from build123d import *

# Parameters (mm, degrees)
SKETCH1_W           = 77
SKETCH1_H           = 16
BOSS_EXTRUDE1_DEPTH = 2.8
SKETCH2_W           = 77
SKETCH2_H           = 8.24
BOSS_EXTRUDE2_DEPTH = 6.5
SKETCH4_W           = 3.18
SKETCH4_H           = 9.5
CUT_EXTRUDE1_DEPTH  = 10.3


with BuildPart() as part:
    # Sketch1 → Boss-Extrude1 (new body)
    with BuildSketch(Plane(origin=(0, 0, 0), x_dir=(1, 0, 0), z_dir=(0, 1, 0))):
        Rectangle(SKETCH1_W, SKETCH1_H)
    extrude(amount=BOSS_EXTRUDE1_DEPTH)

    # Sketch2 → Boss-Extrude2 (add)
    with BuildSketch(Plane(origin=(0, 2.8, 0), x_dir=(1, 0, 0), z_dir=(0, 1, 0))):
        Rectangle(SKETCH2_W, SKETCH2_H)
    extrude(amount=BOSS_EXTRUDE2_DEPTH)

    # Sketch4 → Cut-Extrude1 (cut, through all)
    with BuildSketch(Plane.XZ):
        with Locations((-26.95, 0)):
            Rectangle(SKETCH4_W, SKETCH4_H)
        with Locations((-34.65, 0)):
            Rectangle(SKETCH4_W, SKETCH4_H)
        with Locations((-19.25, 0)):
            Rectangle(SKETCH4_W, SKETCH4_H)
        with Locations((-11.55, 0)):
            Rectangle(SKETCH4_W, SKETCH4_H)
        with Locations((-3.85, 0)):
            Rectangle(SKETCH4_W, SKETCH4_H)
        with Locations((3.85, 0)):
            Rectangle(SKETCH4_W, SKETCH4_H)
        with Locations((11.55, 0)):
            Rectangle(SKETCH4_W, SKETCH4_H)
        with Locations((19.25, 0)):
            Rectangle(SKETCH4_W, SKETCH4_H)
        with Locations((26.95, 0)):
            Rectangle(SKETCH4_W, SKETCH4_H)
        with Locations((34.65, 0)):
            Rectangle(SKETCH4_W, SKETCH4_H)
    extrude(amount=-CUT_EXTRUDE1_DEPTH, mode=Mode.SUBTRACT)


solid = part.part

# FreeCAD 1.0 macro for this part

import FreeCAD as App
import Part
import Sketcher

V = App.Vector
Q = App.Units.Quantity

doc = App.newDocument("Part")
body = doc.addObject("PartDesign::Body", "Body")

# Sketch on XZ plane
sketch1 = doc.addObject("Sketcher::SketchObject", "Sketch")
body.addObject(sketch1)
sketch1.AttachmentSupport = (doc.XZ_Plane, [""])
sketch1.MapMode = "FlatFace"
sketch1.addGeometry(Part.LineSegment(V(-38.5, -8, 0), V(-38.5, 8, 0)), False)
sketch1.addGeometry(Part.LineSegment(V(-38.5, 8, 0), V(38.5, 8, 0)), False)
sketch1.addGeometry(Part.LineSegment(V(38.5, 8, 0), V(38.5, -8, 0)), False)
sketch1.addGeometry(Part.LineSegment(V(38.5, -8, 0), V(-38.5, -8, 0)), False)
sketch1.addConstraint(Sketcher.Constraint("Coincident", 0, 2, 1, 1))
sketch1.addConstraint(Sketcher.Constraint("Coincident", 1, 2, 2, 1))
sketch1.addConstraint(Sketcher.Constraint("Coincident", 2, 2, 3, 1))
sketch1.addConstraint(Sketcher.Constraint("Coincident", 3, 2, 0, 1))
sketch1.addConstraint(Sketcher.Constraint("Vertical", 0))
sketch1.addConstraint(Sketcher.Constraint("Horizontal", 1))
sketch1.addConstraint(Sketcher.Constraint("Vertical", 2))
sketch1.addConstraint(Sketcher.Constraint("Horizontal", 3))
sketch1.addConstraint(Sketcher.Constraint("Symmetric", 0, 2, 2, 2, -1, 1))
sketch1.addConstraint(Sketcher.Constraint("DistanceX", 1, 1, 1, 2, Q("77 mm")))
sketch1.addConstraint(Sketcher.Constraint("DistanceY", 0, 1, 0, 2, Q("16 mm")))
pad1 = doc.addObject("PartDesign::Pad", "Pad")
body.addObject(pad1)
pad1.Profile = sketch1
pad1.Length = 2.8
pad1.Reversed = True

# Sketch on XZ plane
sketch2 = doc.addObject("Sketcher::SketchObject", "Sketch001")
body.addObject(sketch2)
sketch2.AttachmentSupport = (doc.XZ_Plane, [""])
sketch2.MapMode = "FlatFace"
sketch2.AttachmentOffset = App.Placement(V(0, 0, -2.8), App.Rotation())
sketch2.addGeometry(Part.LineSegment(V(-38.5, -4.12, 0), V(-38.5, 4.12, 0)), False)
sketch2.addGeometry(Part.LineSegment(V(-38.5, 4.12, 0), V(38.5, 4.12, 0)), False)
sketch2.addGeometry(Part.LineSegment(V(38.5, 4.12, 0), V(38.5, -4.12, 0)), False)
sketch2.addGeometry(Part.LineSegment(V(38.5, -4.12, 0), V(-38.5, -4.12, 0)), False)
sketch2.addConstraint(Sketcher.Constraint("Coincident", 0, 2, 1, 1))
sketch2.addConstraint(Sketcher.Constraint("Coincident", 1, 2, 2, 1))
sketch2.addConstraint(Sketcher.Constraint("Coincident", 2, 2, 3, 1))
sketch2.addConstraint(Sketcher.Constraint("Coincident", 3, 2, 0, 1))
sketch2.addConstraint(Sketcher.Constraint("Vertical", 0))
sketch2.addConstraint(Sketcher.Constraint("Horizontal", 1))
sketch2.addConstraint(Sketcher.Constraint("Vertical", 2))
sketch2.addConstraint(Sketcher.Constraint("Horizontal", 3))
sketch2.addConstraint(Sketcher.Constraint("Symmetric", 0, 2, 2, 2, -1, 1))
sketch2.addConstraint(Sketcher.Constraint("DistanceX", 1, 1, 1, 2, Q("77 mm")))
sketch2.addConstraint(Sketcher.Constraint("DistanceY", 0, 1, 0, 2, Q("8.24 mm")))
pad2 = doc.addObject("PartDesign::Pad", "Pad001")
body.addObject(pad2)
pad2.Profile = sketch2
pad2.Length = 6.5
pad2.Reversed = True

# Sketch on XZ plane
sketch3 = doc.addObject("Sketcher::SketchObject", "Sketch002")
body.addObject(sketch3)
sketch3.AttachmentSupport = (doc.XZ_Plane, [""])
sketch3.MapMode = "FlatFace"
sketch3.addGeometry(Part.LineSegment(V(-28.54, 4.75, 0), V(-28.54, -4.75, 0)), False)
sketch3.addGeometry(Part.LineSegment(V(-28.54, -4.75, 0), V(-25.36, -4.75, 0)), False)
sketch3.addGeometry(Part.LineSegment(V(-25.36, -4.75, 0), V(-25.36, 4.75, 0)), False)
sketch3.addGeometry(Part.LineSegment(V(-25.36, 4.75, 0), V(-28.54, 4.75, 0)), False)
sketch3.addGeometry(Part.LineSegment(V(-36.24, 4.75, 0), V(-36.24, -4.75, 0)), False)
sketch3.addGeometry(Part.LineSegment(V(-36.24, -4.75, 0), V(-33.06, -4.75, 0)), False)
sketch3.addGeometry(Part.LineSegment(V(-33.06, -4.75, 0), V(-33.06, 4.75, 0)), False)
sketch3.addGeometry(Part.LineSegment(V(-33.06, 4.75, 0), V(-36.24, 4.75, 0)), False)
sketch3.addGeometry(Part.LineSegment(V(-20.84, 4.75, 0), V(-20.84, -4.75, 0)), False)
sketch3.addGeometry(Part.LineSegment(V(-20.84, -4.75, 0), V(-17.66, -4.75, 0)), False)
sketch3.addGeometry(Part.LineSegment(V(-17.66, -4.75, 0), V(-17.66, 4.75, 0)), False)
sketch3.addGeometry(Part.LineSegment(V(-17.66, 4.75, 0), V(-20.84, 4.75, 0)), False)
sketch3.addGeometry(Part.LineSegment(V(-13.14, 4.75, 0), V(-13.14, -4.75, 0)), False)
sketch3.addGeometry(Part.LineSegment(V(-13.14, -4.75, 0), V(-9.96, -4.75, 0)), False)
sketch3.addGeometry(Part.LineSegment(V(-9.96, -4.75, 0), V(-9.96, 4.75, 0)), False)
sketch3.addGeometry(Part.LineSegment(V(-9.96, 4.75, 0), V(-13.14, 4.75, 0)), False)
sketch3.addGeometry(Part.LineSegment(V(-5.44, 4.75, 0), V(-5.44, -4.75, 0)), False)
sketch3.addGeometry(Part.LineSegment(V(-5.44, -4.75, 0), V(-2.26, -4.75, 0)), False)
sketch3.addGeometry(Part.LineSegment(V(-2.26, -4.75, 0), V(-2.26, 4.75, 0)), False)
sketch3.addGeometry(Part.LineSegment(V(-2.26, 4.75, 0), V(-5.44, 4.75, 0)), False)
sketch3.addGeometry(Part.LineSegment(V(2.26, 4.75, 0), V(2.26, -4.75, 0)), False)
sketch3.addGeometry(Part.LineSegment(V(2.26, -4.75, 0), V(5.44, -4.75, 0)), False)
sketch3.addGeometry(Part.LineSegment(V(5.44, -4.75, 0), V(5.44, 4.75, 0)), False)
sketch3.addGeometry(Part.LineSegment(V(5.44, 4.75, 0), V(2.26, 4.75, 0)), False)
sketch3.addGeometry(Part.LineSegment(V(9.96, 4.75, 0), V(9.96, -4.75, 0)), False)
sketch3.addGeometry(Part.LineSegment(V(9.96, -4.75, 0), V(13.14, -4.75, 0)), False)
sketch3.addGeometry(Part.LineSegment(V(13.14, -4.75, 0), V(13.14, 4.75, 0)), False)
sketch3.addGeometry(Part.LineSegment(V(13.14, 4.75, 0), V(9.96, 4.75, 0)), False)
sketch3.addGeometry(Part.LineSegment(V(17.66, 4.75, 0), V(17.66, -4.75, 0)), False)
sketch3.addGeometry(Part.LineSegment(V(17.66, -4.75, 0), V(20.84, -4.75, 0)), False)
sketch3.addGeometry(Part.LineSegment(V(20.84, -4.75, 0), V(20.84, 4.75, 0)), False)
sketch3.addGeometry(Part.LineSegment(V(20.84, 4.75, 0), V(17.66, 4.75, 0)), False)
sketch3.addGeometry(Part.LineSegment(V(25.36, 4.75, 0), V(25.36, -4.75, 0)), False)
sketch3.addGeometry(Part.LineSegment(V(25.36, -4.75, 0), V(28.54, -4.75, 0)), False)
sketch3.addGeometry(Part.LineSegment(V(28.54, -4.75, 0), V(28.54, 4.75, 0)), False)
sketch3.addGeometry(Part.LineSegment(V(28.54, 4.75, 0), V(25.36, 4.75, 0)), False)
sketch3.addGeometry(Part.LineSegment(V(33.06, 4.75, 0), V(33.06, -4.75, 0)), False)
sketch3.addGeometry(Part.LineSegment(V(33.06, -4.75, 0), V(36.24, -4.75, 0)), False)
sketch3.addGeometry(Part.LineSegment(V(36.24, -4.75, 0), V(36.24, 4.75, 0)), False)
sketch3.addGeometry(Part.LineSegment(V(36.24, 4.75, 0), V(33.06, 4.75, 0)), False)
sketch3.addConstraint(Sketcher.Constraint("Coincident", 0, 2, 1, 1))
sketch3.addConstraint(Sketcher.Constraint("Coincident", 1, 2, 2, 1))
sketch3.addConstraint(Sketcher.Constraint("Coincident", 2, 2, 3, 1))
sketch3.addConstraint(Sketcher.Constraint("Coincident", 3, 2, 0, 1))
sketch3.addConstraint(Sketcher.Constraint("Coincident", 4, 2, 5, 1))
sketch3.addConstraint(Sketcher.Constraint("Coincident", 5, 2, 6, 1))
sketch3.addConstraint(Sketcher.Constraint("Coincident", 6, 2, 7, 1))
sketch3.addConstraint(Sketcher.Constraint("Coincident", 7, 2, 4, 1))
sketch3.addConstraint(Sketcher.Constraint("Coincident", 8, 2, 9, 1))
sketch3.addConstraint(Sketcher.Constraint("Coincident", 9, 2, 10, 1))
sketch3.addConstraint(Sketcher.Constraint("Coincident", 10, 2, 11, 1))
sketch3.addConstraint(Sketcher.Constraint("Coincident", 11, 2, 8, 1))
sketch3.addConstraint(Sketcher.Constraint("Coincident", 12, 2, 13, 1))
sketch3.addConstraint(Sketcher.Constraint("Coincident", 13, 2, 14, 1))
sketch3.addConstraint(Sketcher.Constraint("Coincident", 14, 2, 15, 1))
sketch3.addConstraint(Sketcher.Constraint("Coincident", 15, 2, 12, 1))
sketch3.addConstraint(Sketcher.Constraint("Coincident", 16, 2, 17, 1))
sketch3.addConstraint(Sketcher.Constraint("Coincident", 17, 2, 18, 1))
sketch3.addConstraint(Sketcher.Constraint("Coincident", 18, 2, 19, 1))
sketch3.addConstraint(Sketcher.Constraint("Coincident", 19, 2, 16, 1))
sketch3.addConstraint(Sketcher.Constraint("Coincident", 20, 2, 21, 1))
sketch3.addConstraint(Sketcher.Constraint("Coincident", 21, 2, 22, 1))
sketch3.addConstraint(Sketcher.Constraint("Coincident", 22, 2, 23, 1))
sketch3.addConstraint(Sketcher.Constraint("Coincident", 23, 2, 20, 1))
sketch3.addConstraint(Sketcher.Constraint("Coincident", 24, 2, 25, 1))
sketch3.addConstraint(Sketcher.Constraint("Coincident", 25, 2, 26, 1))
sketch3.addConstraint(Sketcher.Constraint("Coincident", 26, 2, 27, 1))
sketch3.addConstraint(Sketcher.Constraint("Coincident", 27, 2, 24, 1))
sketch3.addConstraint(Sketcher.Constraint("Coincident", 28, 2, 29, 1))
sketch3.addConstraint(Sketcher.Constraint("Coincident", 29, 2, 30, 1))
sketch3.addConstraint(Sketcher.Constraint("Coincident", 30, 2, 31, 1))
sketch3.addConstraint(Sketcher.Constraint("Coincident", 31, 2, 28, 1))
sketch3.addConstraint(Sketcher.Constraint("Coincident", 32, 2, 33, 1))
sketch3.addConstraint(Sketcher.Constraint("Coincident", 33, 2, 34, 1))
sketch3.addConstraint(Sketcher.Constraint("Coincident", 34, 2, 35, 1))
sketch3.addConstraint(Sketcher.Constraint("Coincident", 35, 2, 32, 1))
sketch3.addConstraint(Sketcher.Constraint("Coincident", 36, 2, 37, 1))
sketch3.addConstraint(Sketcher.Constraint("Coincident", 37, 2, 38, 1))
sketch3.addConstraint(Sketcher.Constraint("Coincident", 38, 2, 39, 1))
sketch3.addConstraint(Sketcher.Constraint("Coincident", 39, 2, 36, 1))
sketch3.addConstraint(Sketcher.Constraint("Vertical", 0))
sketch3.addConstraint(Sketcher.Constraint("Horizontal", 1))
sketch3.addConstraint(Sketcher.Constraint("Vertical", 2))
sketch3.addConstraint(Sketcher.Constraint("Horizontal", 3))
sketch3.addConstraint(Sketcher.Constraint("Vertical", 4))
sketch3.addConstraint(Sketcher.Constraint("Horizontal", 5))
sketch3.addConstraint(Sketcher.Constraint("Vertical", 6))
sketch3.addConstraint(Sketcher.Constraint("Horizontal", 7))
sketch3.addConstraint(Sketcher.Constraint("Vertical", 8))
sketch3.addConstraint(Sketcher.Constraint("Horizontal", 9))
sketch3.addConstraint(Sketcher.Constraint("Vertical", 10))
sketch3.addConstraint(Sketcher.Constraint("Horizontal", 11))
sketch3.addConstraint(Sketcher.Constraint("Vertical", 12))
sketch3.addConstraint(Sketcher.Constraint("Horizontal", 13))
sketch3.addConstraint(Sketcher.Constraint("Vertical", 14))
sketch3.addConstraint(Sketcher.Constraint("Horizontal", 15))
sketch3.addConstraint(Sketcher.Constraint("Vertical", 16))
sketch3.addConstraint(Sketcher.Constraint("Horizontal", 17))
sketch3.addConstraint(Sketcher.Constraint("Vertical", 18))
sketch3.addConstraint(Sketcher.Constraint("Horizontal", 19))
sketch3.addConstraint(Sketcher.Constraint("Vertical", 20))
sketch3.addConstraint(Sketcher.Constraint("Horizontal", 21))
sketch3.addConstraint(Sketcher.Constraint("Vertical", 22))
sketch3.addConstraint(Sketcher.Constraint("Horizontal", 23))
sketch3.addConstraint(Sketcher.Constraint("Vertical", 24))
sketch3.addConstraint(Sketcher.Constraint("Horizontal", 25))
sketch3.addConstraint(Sketcher.Constraint("Vertical", 26))
sketch3.addConstraint(Sketcher.Constraint("Horizontal", 27))
sketch3.addConstraint(Sketcher.Constraint("Vertical", 28))
sketch3.addConstraint(Sketcher.Constraint("Horizontal", 29))
sketch3.addConstraint(Sketcher.Constraint("Vertical", 30))
sketch3.addConstraint(Sketcher.Constraint("Horizontal", 31))
sketch3.addConstraint(Sketcher.Constraint("Vertical", 32))
sketch3.addConstraint(Sketcher.Constraint("Horizontal", 33))
sketch3.addConstraint(Sketcher.Constraint("Vertical", 34))
sketch3.addConstraint(Sketcher.Constraint("Horizontal", 35))
sketch3.addConstraint(Sketcher.Constraint("Vertical", 36))
sketch3.addConstraint(Sketcher.Constraint("Horizontal", 37))
sketch3.addConstraint(Sketcher.Constraint("Vertical", 38))
sketch3.addConstraint(Sketcher.Constraint("Horizontal", 39))
sketch3.addConstraint(Sketcher.Constraint("Symmetric", 18, 2, 20, 2, -1, 1))
sketch3.addConstraint(Sketcher.Constraint("Symmetric", 16, 2, 22, 2, -1, 1))
sketch3.addConstraint(Sketcher.Constraint("Symmetric", 14, 2, 24, 2, -1, 1))
sketch3.addConstraint(Sketcher.Constraint("Symmetric", 12, 2, 26, 2, -1, 1))
sketch3.addConstraint(Sketcher.Constraint("Symmetric", 10, 2, 28, 2, -1, 1))
sketch3.addConstraint(Sketcher.Constraint("Symmetric", 8, 2, 30, 2, -1, 1))
sketch3.addConstraint(Sketcher.Constraint("Symmetric", 2, 2, 32, 2, -1, 1))
sketch3.addConstraint(Sketcher.Constraint("Symmetric", 0, 2, 34, 2, -1, 1))
sketch3.addConstraint(Sketcher.Constraint("Symmetric", 6, 2, 36, 2, -1, 1))
sketch3.addConstraint(Sketcher.Constraint("Symmetric", 4, 2, 38, 2, -1, 1))
sketch3.addConstraint(Sketcher.Constraint("Horizontal", 1, 2, 4, 2))
sketch3.addConstraint(Sketcher.Constraint("Horizontal", 3, 2, 6, 2))
sketch3.addConstraint(Sketcher.Constraint("Horizontal", 5, 2, 8, 2))
sketch3.addConstraint(Sketcher.Constraint("Horizontal", 7, 2, 10, 2))
sketch3.addConstraint(Sketcher.Constraint("Horizontal", 9, 2, 12, 2))
sketch3.addConstraint(Sketcher.Constraint("Horizontal", 11, 2, 14, 2))
sketch3.addConstraint(Sketcher.Constraint("Horizontal", 13, 2, 16, 2))
sketch3.addConstraint(Sketcher.Constraint("Horizontal", 15, 2, 18, 2))
sketch3.addConstraint(Sketcher.Constraint("Horizontal", 17, 2, 20, 2))
sketch3.addConstraint(Sketcher.Constraint("Equal", 3, 5))
sketch3.addConstraint(Sketcher.Constraint("Equal", 7, 9))
sketch3.addConstraint(Sketcher.Constraint("Equal", 11, 13))
sketch3.addConstraint(Sketcher.Constraint("Equal", 15, 17))
sketch3.addConstraint(Sketcher.Constraint("DistanceY", 0, 2, 0, 1, Q("9.5 mm")))
sketch3.addConstraint(Sketcher.Constraint("DistanceX", 1, 1, 1, 2, Q("3.18 mm")))
sketch3.addConstraint(Sketcher.Constraint("DistanceX", 4, 2, 0, 2, Q("7.7 mm")))
sketch3.addConstraint(Sketcher.Constraint("DistanceX", 0, 2, 8, 2, Q("7.7 mm")))
sketch3.addConstraint(Sketcher.Constraint("DistanceX", 8, 2, 12, 2, Q("7.7 mm")))
sketch3.addConstraint(Sketcher.Constraint("DistanceX", 12, 2, 16, 2, Q("7.7 mm")))
sketch3.addConstraint(Sketcher.Constraint("DistanceX", 16, 2, 20, 2, Q("7.7 mm")))
pocket1 = doc.addObject("PartDesign::Pocket", "Pocket")
body.addObject(pocket1)
pocket1.Profile = sketch3
pocket1.Type = "ThroughAll"

doc.recompute()
